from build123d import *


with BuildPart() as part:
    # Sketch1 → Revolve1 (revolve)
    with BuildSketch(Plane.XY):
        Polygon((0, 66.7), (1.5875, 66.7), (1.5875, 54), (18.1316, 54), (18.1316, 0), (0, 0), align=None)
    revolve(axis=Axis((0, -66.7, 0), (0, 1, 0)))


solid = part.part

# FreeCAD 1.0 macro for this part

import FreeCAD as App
import Part
import Sketcher

V = App.Vector
Q = App.Units.Quantity


def add_polygon(sketch, points):
    """Adds a closed chain of lines whose ends are joined by coincident constraints."""
    first, n = sketch.GeometryCount, len(points)
    for a, b in zip(points, points[1:] + points[:1]):
        sketch.addGeometry(Part.LineSegment(App.Vector(*a, 0), App.Vector(*b, 0)), False)
    for i in range(n):
        sketch.addConstraint(Sketcher.Constraint("Coincident", first + i, 2, first + (i + 1) % n, 1))

doc = App.newDocument("Part")
params = doc.addObject("Spreadsheet::Sheet", "Params")
for row, (alias, value) in enumerate([
    ("sketch1_height", "54 mm"),
    ("sketch1_height2", "66.7 mm"),
    ("revolution_angle", "360 deg"),
], start=1):
    params.set(f"A{row}", alias)
    params.set(f"B{row}", "=" + value)
    params.setAlias(f"B{row}", alias)

body = doc.addObject("PartDesign::Body", "Body")

sketch1 = body.newObject("Sketcher::SketchObject", "Sketch")
sketch1.AttachmentSupport = (doc.getObject("XY_Plane"), [""])
sketch1.MapMode = "FlatFace"
add_polygon(sketch1, [(1.6, 66.7), (0, 66.7), (0, 0), (18.1, 0), (18.1, 54), (1.6, 54)])
sketch1.addConstraint([
    Sketcher.Constraint("Horizontal", 0),
    Sketcher.Constraint("Vertical", 1),
    Sketcher.Constraint("Horizontal", 2),
    Sketcher.Constraint("Vertical", 3),
    Sketcher.Constraint("Horizontal", 4),
    Sketcher.Constraint("Vertical", 5),
    Sketcher.Constraint("Coincident", 1, 2, -1, 1),
    Sketcher.Constraint("DistanceY", 3, 1, 3, 2, Q("54 mm")),
    Sketcher.Constraint("DistanceY", 1, 2, 1, 1, Q("66.7 mm")),
    Sketcher.Constraint("DistanceX", 0, 2, 0, 1, Q("1.5875 mm")),
    Sketcher.Constraint("DistanceX", 2, 1, 2, 2, Q("18.1316 mm")),
])
sketch1.setExpression("Constraints[13]", "Params.sketch1_height")
sketch1.setExpression("Constraints[14]", "Params.sketch1_height2")
revolution = body.newObject("PartDesign::Revolution", "Revolution")
revolution.Profile = sketch1
revolution.ReferenceAxis = (sketch1, ["V_Axis"])
revolution.setExpression("Angle", "Params.revolution_angle")

doc.recompute()
